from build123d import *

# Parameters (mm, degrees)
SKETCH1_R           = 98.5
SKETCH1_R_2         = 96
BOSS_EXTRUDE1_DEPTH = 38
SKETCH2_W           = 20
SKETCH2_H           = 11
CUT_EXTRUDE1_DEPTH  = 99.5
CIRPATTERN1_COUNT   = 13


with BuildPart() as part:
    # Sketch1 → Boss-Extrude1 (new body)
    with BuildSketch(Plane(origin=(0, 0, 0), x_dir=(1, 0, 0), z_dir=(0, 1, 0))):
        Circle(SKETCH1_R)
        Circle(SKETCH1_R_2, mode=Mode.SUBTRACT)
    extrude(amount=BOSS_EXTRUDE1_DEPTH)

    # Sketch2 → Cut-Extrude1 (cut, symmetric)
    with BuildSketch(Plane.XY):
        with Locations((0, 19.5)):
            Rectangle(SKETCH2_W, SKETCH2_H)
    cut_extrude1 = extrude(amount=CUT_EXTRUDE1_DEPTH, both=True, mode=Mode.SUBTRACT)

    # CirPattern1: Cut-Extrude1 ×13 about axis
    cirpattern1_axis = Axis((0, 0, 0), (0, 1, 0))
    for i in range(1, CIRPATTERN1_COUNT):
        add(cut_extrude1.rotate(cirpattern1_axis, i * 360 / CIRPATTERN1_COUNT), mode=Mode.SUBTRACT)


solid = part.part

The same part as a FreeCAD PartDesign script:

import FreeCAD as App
import Part
import Sketcher

V = App.Vector

doc = App.newDocument("Part")
body = doc.addObject("PartDesign::Body", "Body")

# Sketch on XZ plane
sketch1 = body.newObject("Sketcher::SketchObject", "Sketch")
sketch1.AttachmentSupport = (doc.getObject("XZ_Plane"), [""])
sketch1.MapMode = "FlatFace"
sketch1.addGeometry([
    Part.Circle(V(0, 0, 0), V(0, 0, 1), 98),
    Part.Circle(V(0, 0, 0), V(0, 0, 1), 96),
], False)
sketch1.addConstraint([
    Sketcher.Constraint("Coincident", 0, 3, -1, 1),
    Sketcher.Constraint("Coincident", 1, 3, -1, 1),
    Sketcher.Constraint("Diameter", 0, 197.0),
    Sketcher.Constraint("Diameter", 1, 192.0),
])
pad1 = body.newObject("PartDesign::Pad", "Pad")
pad1.Profile = sketch1
pad1.Length = 38
pad1.Reversed = True

# Sketch on XY plane
sketch2 = body.newObject("Sketcher::SketchObject", "Sketch001")
sketch2.AttachmentSupport = (doc.getObject("XY_Plane"), [""])
sketch2.MapMode = "FlatFace"
sketch2.addGeometry([
    Part.LineSegment(V(-10, 25, 0), V(-10, 14, 0)),
    Part.LineSegment(V(-10, 14, 0), V(10, 14, 0)),
    Part.LineSegment(V(10, 14, 0), V(10, 25, 0)),
    Part.LineSegment(V(10, 25, 0), V(-10, 25, 0)),
], False)
sketch2.addConstraint([
    Sketcher.Constraint("Coincident", 0, 2, 1, 1),
    Sketcher.Constraint("Coincident", 1, 2, 2, 1),
    Sketcher.Constraint("Coincident", 2, 2, 3, 1),
    Sketcher.Constraint("Coincident", 3, 2, 0, 1),
    Sketcher.Constraint("Vertical", 0),
    Sketcher.Constraint("Horizontal", 1),
    Sketcher.Constraint("Vertical", 2),
    Sketcher.Constraint("Horizontal", 3),
    Sketcher.Constraint("DistanceX", 1, 1, 1, 2, 20.0),
    Sketcher.Constraint("DistanceY", 0, 2, 0, 1, 11.0),
    Sketcher.Constraint("DistanceX", 0, 2, -1, 1, 10.0),
    Sketcher.Constraint("DistanceY", -1, 1, 0, 2, 14.0),
])
pocket1 = body.newObject("PartDesign::Pocket", "Pocket")
pocket1.Profile = sketch2
pocket1.Length = 199
pocket1.Midplane = True
doc.recompute()

polarpattern = body.newObject("PartDesign::PolarPattern", "PolarPattern")
polarpattern.Originals = [pocket1]
polarpattern.Axis = (doc.getObject("Y_Axis"), [""])
polarpattern.Angle = 360
polarpattern.Occurrences = 13
body.Tip = polarpattern

doc.recompute()
